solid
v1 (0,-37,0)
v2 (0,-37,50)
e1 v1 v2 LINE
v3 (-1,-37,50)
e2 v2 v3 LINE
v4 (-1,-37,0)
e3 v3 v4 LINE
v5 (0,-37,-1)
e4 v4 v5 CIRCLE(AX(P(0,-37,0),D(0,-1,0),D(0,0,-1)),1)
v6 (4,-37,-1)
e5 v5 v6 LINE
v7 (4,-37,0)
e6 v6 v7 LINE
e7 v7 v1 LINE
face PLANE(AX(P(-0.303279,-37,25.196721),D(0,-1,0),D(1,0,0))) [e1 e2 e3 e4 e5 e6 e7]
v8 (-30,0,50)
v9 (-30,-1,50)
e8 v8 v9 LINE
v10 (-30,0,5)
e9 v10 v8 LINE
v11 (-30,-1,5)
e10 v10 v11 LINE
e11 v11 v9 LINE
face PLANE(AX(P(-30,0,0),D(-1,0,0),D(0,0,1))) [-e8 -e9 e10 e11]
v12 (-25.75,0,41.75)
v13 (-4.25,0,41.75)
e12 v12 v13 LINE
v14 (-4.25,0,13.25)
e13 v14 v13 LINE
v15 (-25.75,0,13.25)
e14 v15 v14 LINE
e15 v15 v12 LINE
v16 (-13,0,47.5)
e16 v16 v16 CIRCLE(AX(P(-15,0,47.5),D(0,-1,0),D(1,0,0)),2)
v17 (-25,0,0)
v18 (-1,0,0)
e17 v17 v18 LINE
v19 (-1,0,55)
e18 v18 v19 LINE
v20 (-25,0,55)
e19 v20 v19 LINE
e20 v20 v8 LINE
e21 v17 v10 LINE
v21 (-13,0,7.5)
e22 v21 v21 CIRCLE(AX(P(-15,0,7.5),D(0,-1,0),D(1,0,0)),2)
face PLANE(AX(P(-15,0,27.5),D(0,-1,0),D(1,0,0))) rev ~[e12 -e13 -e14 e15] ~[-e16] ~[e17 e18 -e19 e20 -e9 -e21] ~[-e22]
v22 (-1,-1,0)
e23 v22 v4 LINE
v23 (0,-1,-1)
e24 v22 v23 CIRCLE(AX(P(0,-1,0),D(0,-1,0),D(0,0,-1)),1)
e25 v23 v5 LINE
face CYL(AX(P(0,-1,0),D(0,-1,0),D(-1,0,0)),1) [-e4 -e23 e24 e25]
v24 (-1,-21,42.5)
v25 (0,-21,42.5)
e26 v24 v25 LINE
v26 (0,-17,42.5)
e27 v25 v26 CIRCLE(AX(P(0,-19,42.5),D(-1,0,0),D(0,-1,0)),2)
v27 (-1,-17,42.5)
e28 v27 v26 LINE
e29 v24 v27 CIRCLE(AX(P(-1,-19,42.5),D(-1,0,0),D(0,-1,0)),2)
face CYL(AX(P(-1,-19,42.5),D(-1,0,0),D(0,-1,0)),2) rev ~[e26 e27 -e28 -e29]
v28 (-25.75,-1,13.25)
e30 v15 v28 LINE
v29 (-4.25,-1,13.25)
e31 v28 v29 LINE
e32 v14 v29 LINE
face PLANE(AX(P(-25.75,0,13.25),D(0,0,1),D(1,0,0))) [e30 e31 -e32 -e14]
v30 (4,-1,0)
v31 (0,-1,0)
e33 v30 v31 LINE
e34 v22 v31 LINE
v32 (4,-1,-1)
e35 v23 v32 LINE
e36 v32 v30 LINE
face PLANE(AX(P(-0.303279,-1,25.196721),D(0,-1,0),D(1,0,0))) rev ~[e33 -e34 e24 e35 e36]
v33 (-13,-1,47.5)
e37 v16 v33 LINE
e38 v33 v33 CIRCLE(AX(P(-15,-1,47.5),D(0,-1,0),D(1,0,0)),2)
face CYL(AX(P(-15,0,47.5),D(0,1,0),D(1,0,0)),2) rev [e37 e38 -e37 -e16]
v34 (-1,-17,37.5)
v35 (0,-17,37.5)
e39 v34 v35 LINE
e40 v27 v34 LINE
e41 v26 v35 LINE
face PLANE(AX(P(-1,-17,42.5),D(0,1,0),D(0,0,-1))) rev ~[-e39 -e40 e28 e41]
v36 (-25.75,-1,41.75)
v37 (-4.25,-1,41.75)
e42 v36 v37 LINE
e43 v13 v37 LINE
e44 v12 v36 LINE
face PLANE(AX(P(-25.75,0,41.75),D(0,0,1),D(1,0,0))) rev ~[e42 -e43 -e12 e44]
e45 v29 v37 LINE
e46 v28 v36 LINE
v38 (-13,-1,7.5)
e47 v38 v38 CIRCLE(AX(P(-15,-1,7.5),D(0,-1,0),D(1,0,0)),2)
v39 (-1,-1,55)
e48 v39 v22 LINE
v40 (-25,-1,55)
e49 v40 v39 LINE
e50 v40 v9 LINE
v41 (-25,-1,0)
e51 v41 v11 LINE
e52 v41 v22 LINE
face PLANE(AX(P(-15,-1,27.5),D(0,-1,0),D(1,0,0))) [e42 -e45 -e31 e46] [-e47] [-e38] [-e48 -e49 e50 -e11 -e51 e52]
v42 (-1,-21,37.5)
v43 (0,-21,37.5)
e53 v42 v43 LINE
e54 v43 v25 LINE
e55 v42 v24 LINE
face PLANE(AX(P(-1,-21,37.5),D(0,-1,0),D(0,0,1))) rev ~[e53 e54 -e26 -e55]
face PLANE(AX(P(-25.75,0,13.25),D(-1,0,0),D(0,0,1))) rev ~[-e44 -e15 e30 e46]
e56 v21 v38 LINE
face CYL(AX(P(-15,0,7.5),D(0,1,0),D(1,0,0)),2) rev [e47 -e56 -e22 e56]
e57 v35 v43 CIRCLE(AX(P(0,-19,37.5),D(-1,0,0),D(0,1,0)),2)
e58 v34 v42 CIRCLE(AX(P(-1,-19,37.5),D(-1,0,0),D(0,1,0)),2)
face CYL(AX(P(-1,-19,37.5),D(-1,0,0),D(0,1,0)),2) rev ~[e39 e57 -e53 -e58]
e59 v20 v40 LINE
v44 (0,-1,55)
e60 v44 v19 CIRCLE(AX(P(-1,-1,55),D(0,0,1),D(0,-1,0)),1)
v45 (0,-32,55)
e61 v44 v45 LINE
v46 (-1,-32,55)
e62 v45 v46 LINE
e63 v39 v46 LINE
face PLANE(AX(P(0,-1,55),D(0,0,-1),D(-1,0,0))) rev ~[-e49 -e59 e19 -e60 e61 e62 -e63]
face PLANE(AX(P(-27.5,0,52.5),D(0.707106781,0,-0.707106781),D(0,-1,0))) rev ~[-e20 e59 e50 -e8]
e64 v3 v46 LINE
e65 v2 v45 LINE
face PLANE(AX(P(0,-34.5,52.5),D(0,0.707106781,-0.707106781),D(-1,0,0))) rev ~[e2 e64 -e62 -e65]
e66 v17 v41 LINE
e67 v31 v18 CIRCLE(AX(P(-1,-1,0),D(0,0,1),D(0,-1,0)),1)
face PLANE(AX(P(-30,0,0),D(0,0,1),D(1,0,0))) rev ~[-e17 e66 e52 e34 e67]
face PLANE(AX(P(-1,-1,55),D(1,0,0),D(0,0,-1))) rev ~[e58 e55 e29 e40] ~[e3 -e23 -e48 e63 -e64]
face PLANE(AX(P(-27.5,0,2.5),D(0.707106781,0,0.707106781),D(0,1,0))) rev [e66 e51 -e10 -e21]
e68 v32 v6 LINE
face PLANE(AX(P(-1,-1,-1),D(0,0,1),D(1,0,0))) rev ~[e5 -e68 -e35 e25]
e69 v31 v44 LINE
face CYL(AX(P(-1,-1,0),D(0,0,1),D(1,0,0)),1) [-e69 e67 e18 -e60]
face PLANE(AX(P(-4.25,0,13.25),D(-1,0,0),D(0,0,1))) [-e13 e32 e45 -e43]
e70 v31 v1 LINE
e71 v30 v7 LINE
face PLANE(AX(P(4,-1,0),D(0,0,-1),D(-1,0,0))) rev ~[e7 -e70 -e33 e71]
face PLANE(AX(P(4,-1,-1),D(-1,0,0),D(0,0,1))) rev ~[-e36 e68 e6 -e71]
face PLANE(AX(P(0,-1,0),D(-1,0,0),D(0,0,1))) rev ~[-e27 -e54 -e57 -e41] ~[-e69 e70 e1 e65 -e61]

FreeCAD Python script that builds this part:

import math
import FreeCAD as App
import Part
import Sketcher

V = App.Vector


def edges_at(feature, points):
    """Names of the edges that pass closest to the given points."""
    edges = feature.Shape.Edges
    near = lambda p: min(range(len(edges)), key=lambda i: edges[i].distToShape(Part.Vertex(*p))[0])
    return sorted({f"Edge{near(p) + 1}" for p in points})


def add_polygon(sketch, points):
    """Adds a closed chain of lines whose ends are joined by coincident constraints."""
    first, n = sketch.GeometryCount, len(points)
    for a, b in zip(points, points[1:] + points[:1]):
        sketch.addGeometry(Part.LineSegment(App.Vector(*a, 0), App.Vector(*b, 0)), False)
    for i in range(n):
        sketch.addConstraint(Sketcher.Constraint("Coincident", first + i, 2, first + (i + 1) % n, 1))

doc = App.newDocument("Part")
params = doc.addObject("Spreadsheet::Sheet", "Params")
for row, (alias, value) in enumerate([
    ("sketch1_diameter", "4 mm"),
    ("sketch1_width", "30 mm"),
    ("sketch1_height", "55 mm"),
    ("sketch1_width2", "21.5 mm"),
    ("sketch1_height2", "28.5 mm"),
    ("pad1_length", "1 mm"),
    ("sketch2_width", "1 mm"),
    ("sketch2_width2", "5 mm"),
    ("sketch2_height", "55 mm"),
    ("pad2_length", "36 mm"),
    ("sketch3_radius", "2 mm"),
    ("sketch3_height", "5 mm"),
    ("chamfer_size", "5 mm"),
    ("fillet_radius", "1 mm"),
], start=1):
    params.set(f"A{row}", alias)
    params.set(f"B{row}", "=" + value)
    params.setAlias(f"B{row}", alias)

body = doc.addObject("PartDesign::Body", "Body")

# Sketch on XZ plane
sketch1 = body.newObject("Sketcher::SketchObject", "Sketch")
sketch1.AttachmentSupport = (doc.getObject("XZ_Plane"), [""])
sketch1.MapMode = "FlatFace"
add_polygon(sketch1, [(-30, 55), (-30, 0), (0, 0), (0, 55)])  # lines 0-3
sketch1.addGeometry(Part.Circle(V(-15, 7.5, 0), V(0, 0, 1), 2), False)  # 4
add_polygon(sketch1, [(-4.2, 13.2), (-25.8, 13.2), (-25.8, 41.8), (-4.2, 41.8)])  # lines 5-8
sketch1.addGeometry(Part.Circle(V(-15, 47.5, 0), V(0, 0, 1), 2), False)  # 9
sketch1.addConstraint(Sketcher.Constraint("Vertical", 0))
sketch1.addConstraint(Sketcher.Constraint("Horizontal", 1))
sketch1.addConstraint(Sketcher.Constraint("Vertical", 2))
sketch1.addConstraint(Sketcher.Constraint("Horizontal", 3))
sketch1.addConstraint(Sketcher.Constraint("Horizontal", 5))
sketch1.addConstraint(Sketcher.Constraint("Vertical", 6))
sketch1.addConstraint(Sketcher.Constraint("Horizontal", 7))
sketch1.addConstraint(Sketcher.Constraint("Vertical", 8))
sketch1.addConstraint(Sketcher.Constraint("Coincident", 1, 2, -1, 1))
sketch1.addConstraint(Sketcher.Constraint("Equal", 4, 9))
sketch1.addConstraint(Sketcher.Constraint("Vertical", 4, 3, 9, 3))
sketch1.addConstraint(Sketcher.Constraint("Diameter", 4, 4.0))
sketch1.addConstraint(Sketcher.Constraint("DistanceX", 1, 1, 1, 2, 30.0))
sketch1.addConstraint(Sketcher.Constraint("DistanceY", 0, 2, 0, 1, 55.0))
sketch1.addConstraint(Sketcher.Constraint("DistanceX", 5, 2, 5, 1, 21.5))
sketch1.addConstraint(Sketcher.Constraint("DistanceY", 6, 1, 6, 2, 28.5))
sketch1.addConstraint(Sketcher.Constraint("DistanceX", 4, 3, -1, 1, 15.0))
sketch1.addConstraint(Sketcher.Constraint("DistanceY", 4, 3, 9, 3, 40.0))
sketch1.addConstraint(Sketcher.Constraint("DistanceY", -1, 1, 4, 3, 7.5))
sketch1.addConstraint(Sketcher.Constraint("DistanceX", 5, 2, -1, 1, 25.75))
sketch1.addConstraint(Sketcher.Constraint("DistanceY", -1, 1, 5, 2, 13.25))
sketch1.setExpression("Constraints[19]", "Params.sketch1_diameter")
sketch1.setExpression("Constraints[20]", "Params.sketch1_width")
sketch1.setExpression("Constraints[21]", "Params.sketch1_height")
sketch1.setExpression("Constraints[22]", "Params.sketch1_width2")
sketch1.setExpression("Constraints[23]", "Params.sketch1_height2")
pad1 = body.newObject("PartDesign::Pad", "Pad")
pad1.Profile = sketch1
pad1.setExpression("Length", "Params.pad1_length")

# Sketch on XZ plane
sketch2 = body.newObject("Sketcher::SketchObject", "Sketch001")
sketch2.AttachmentSupport = (doc.getObject("XZ_Plane"), [""])
sketch2.MapMode = "FlatFace"
sketch2.AttachmentOffset = App.Placement(V(0, 0, 1), App.Rotation())
add_polygon(sketch2, [(0, 0), (0, 55), (-1, 55), (-1, -1), (4, -1), (4, 0)])  # lines 0-5
sketch2.addConstraint(Sketcher.Constraint("Vertical", 0))
sketch2.addConstraint(Sketcher.Constraint("Horizontal", 1))
sketch2.addConstraint(Sketcher.Constraint("Vertical", 2))
sketch2.addConstraint(Sketcher.Constraint("Horizontal", 3))
sketch2.addConstraint(Sketcher.Constraint("Vertical", 4))
sketch2.addConstraint(Sketcher.Constraint("Horizontal", 5))
sketch2.addConstraint(Sketcher.Constraint("Coincident", 5, 2, -1, 1))
sketch2.addConstraint(Sketcher.Constraint("Equal", 1, 4))
sketch2.addConstraint(Sketcher.Constraint("DistanceX", 1, 2, 1, 1, 1.0))
sketch2.addConstraint(Sketcher.Constraint("DistanceX", 3, 1, 3, 2, 5.0))
sketch2.addConstraint(Sketcher.Constraint("DistanceY", 0, 1, 0, 2, 55.0))
sketch2.setExpression("Constraints[14]", "Params.sketch2_width")
sketch2.setExpression("Constraints[15]", "Params.sketch2_width2")
sketch2.setExpression("Constraints[16]", "Params.sketch2_height")
pad2 = body.newObject("PartDesign::Pad", "Pad001")
pad2.Profile = sketch2
pad2.setExpression("Length", "Params.pad2_length")

# Sketch on YZ plane
sketch3 = body.newObject("Sketcher::SketchObject", "Sketch002")
sketch3.AttachmentSupport = (doc.getObject("YZ_Plane"), [""])
sketch3.MapMode = "FlatFace"
sketch3.AttachmentOffset = App.Placement(V(0, 0, -1), App.Rotation())
sketch3.addGeometry(Part.ArcOfCircle(Part.Circle(V(-19, 42.5, 0), V(0, 0, 1), 2), math.radians(0), math.radians(180)), False)
sketch3.addGeometry(Part.LineSegment(V(-17, 42.5, 0), V(-17, 37.5, 0)), False)
sketch3.addGeometry(Part.ArcOfCircle(Part.Circle(V(-19, 37.5, 0), V(0, 0, 1), 2), math.radians(180), math.radians(360)), False)
sketch3.addGeometry(Part.LineSegment(V(-21, 37.5, 0), V(-21, 42.5, 0)), False)
sketch3.addConstraint(Sketcher.Constraint("Tangent", 0, 1, 1, 1))
sketch3.addConstraint(Sketcher.Constraint("Tangent", 1, 2, 2, 2))
sketch3.addConstraint(Sketcher.Constraint("Tangent", 2, 1, 3, 1))
sketch3.addConstraint(Sketcher.Constraint("Tangent", 3, 2, 0, 2))
sketch3.addConstraint(Sketcher.Constraint("Vertical", 1))
sketch3.addConstraint(Sketcher.Constraint("Vertical", 3))
sketch3.addConstraint(Sketcher.Constraint("Radius", 0, 2.0))
sketch3.addConstraint(Sketcher.Constraint("DistanceY", 1, 2, 1, 1, 5.0))
sketch3.addConstraint(Sketcher.Constraint("DistanceX", 0, 3, -1, 1, 19.0))
sketch3.addConstraint(Sketcher.Constraint("DistanceY", -1, 1, 0, 3, 42.5))
sketch3.setExpression("Constraints[6]", "Params.sketch3_radius")
sketch3.setExpression("Constraints[7]", "Params.sketch3_height")
pocket1 = body.newObject("PartDesign::Pocket", "Pocket")
pocket1.Profile = sketch3
pocket1.Type = "ThroughAll"
pocket1.Reversed = True
doc.recompute()

chamfer = body.newObject("PartDesign::Chamfer", "Chamfer")
chamfer.Base = (pocket1, edges_at(pocket1, [(-30, -0.5, 55), (-0.5, -37, 55), (-30, -0.5, 0)]))
chamfer.setExpression("Size", "Params.chamfer_size")
doc.recompute()

fillet = body.newObject("PartDesign::Fillet", "Fillet")
fillet.Base = (chamfer, edges_at(chamfer, [(0, 0, 27.5), (-1, -19, -1)]))
fillet.setExpression("Radius", "Params.fillet_radius")

doc.recompute()
